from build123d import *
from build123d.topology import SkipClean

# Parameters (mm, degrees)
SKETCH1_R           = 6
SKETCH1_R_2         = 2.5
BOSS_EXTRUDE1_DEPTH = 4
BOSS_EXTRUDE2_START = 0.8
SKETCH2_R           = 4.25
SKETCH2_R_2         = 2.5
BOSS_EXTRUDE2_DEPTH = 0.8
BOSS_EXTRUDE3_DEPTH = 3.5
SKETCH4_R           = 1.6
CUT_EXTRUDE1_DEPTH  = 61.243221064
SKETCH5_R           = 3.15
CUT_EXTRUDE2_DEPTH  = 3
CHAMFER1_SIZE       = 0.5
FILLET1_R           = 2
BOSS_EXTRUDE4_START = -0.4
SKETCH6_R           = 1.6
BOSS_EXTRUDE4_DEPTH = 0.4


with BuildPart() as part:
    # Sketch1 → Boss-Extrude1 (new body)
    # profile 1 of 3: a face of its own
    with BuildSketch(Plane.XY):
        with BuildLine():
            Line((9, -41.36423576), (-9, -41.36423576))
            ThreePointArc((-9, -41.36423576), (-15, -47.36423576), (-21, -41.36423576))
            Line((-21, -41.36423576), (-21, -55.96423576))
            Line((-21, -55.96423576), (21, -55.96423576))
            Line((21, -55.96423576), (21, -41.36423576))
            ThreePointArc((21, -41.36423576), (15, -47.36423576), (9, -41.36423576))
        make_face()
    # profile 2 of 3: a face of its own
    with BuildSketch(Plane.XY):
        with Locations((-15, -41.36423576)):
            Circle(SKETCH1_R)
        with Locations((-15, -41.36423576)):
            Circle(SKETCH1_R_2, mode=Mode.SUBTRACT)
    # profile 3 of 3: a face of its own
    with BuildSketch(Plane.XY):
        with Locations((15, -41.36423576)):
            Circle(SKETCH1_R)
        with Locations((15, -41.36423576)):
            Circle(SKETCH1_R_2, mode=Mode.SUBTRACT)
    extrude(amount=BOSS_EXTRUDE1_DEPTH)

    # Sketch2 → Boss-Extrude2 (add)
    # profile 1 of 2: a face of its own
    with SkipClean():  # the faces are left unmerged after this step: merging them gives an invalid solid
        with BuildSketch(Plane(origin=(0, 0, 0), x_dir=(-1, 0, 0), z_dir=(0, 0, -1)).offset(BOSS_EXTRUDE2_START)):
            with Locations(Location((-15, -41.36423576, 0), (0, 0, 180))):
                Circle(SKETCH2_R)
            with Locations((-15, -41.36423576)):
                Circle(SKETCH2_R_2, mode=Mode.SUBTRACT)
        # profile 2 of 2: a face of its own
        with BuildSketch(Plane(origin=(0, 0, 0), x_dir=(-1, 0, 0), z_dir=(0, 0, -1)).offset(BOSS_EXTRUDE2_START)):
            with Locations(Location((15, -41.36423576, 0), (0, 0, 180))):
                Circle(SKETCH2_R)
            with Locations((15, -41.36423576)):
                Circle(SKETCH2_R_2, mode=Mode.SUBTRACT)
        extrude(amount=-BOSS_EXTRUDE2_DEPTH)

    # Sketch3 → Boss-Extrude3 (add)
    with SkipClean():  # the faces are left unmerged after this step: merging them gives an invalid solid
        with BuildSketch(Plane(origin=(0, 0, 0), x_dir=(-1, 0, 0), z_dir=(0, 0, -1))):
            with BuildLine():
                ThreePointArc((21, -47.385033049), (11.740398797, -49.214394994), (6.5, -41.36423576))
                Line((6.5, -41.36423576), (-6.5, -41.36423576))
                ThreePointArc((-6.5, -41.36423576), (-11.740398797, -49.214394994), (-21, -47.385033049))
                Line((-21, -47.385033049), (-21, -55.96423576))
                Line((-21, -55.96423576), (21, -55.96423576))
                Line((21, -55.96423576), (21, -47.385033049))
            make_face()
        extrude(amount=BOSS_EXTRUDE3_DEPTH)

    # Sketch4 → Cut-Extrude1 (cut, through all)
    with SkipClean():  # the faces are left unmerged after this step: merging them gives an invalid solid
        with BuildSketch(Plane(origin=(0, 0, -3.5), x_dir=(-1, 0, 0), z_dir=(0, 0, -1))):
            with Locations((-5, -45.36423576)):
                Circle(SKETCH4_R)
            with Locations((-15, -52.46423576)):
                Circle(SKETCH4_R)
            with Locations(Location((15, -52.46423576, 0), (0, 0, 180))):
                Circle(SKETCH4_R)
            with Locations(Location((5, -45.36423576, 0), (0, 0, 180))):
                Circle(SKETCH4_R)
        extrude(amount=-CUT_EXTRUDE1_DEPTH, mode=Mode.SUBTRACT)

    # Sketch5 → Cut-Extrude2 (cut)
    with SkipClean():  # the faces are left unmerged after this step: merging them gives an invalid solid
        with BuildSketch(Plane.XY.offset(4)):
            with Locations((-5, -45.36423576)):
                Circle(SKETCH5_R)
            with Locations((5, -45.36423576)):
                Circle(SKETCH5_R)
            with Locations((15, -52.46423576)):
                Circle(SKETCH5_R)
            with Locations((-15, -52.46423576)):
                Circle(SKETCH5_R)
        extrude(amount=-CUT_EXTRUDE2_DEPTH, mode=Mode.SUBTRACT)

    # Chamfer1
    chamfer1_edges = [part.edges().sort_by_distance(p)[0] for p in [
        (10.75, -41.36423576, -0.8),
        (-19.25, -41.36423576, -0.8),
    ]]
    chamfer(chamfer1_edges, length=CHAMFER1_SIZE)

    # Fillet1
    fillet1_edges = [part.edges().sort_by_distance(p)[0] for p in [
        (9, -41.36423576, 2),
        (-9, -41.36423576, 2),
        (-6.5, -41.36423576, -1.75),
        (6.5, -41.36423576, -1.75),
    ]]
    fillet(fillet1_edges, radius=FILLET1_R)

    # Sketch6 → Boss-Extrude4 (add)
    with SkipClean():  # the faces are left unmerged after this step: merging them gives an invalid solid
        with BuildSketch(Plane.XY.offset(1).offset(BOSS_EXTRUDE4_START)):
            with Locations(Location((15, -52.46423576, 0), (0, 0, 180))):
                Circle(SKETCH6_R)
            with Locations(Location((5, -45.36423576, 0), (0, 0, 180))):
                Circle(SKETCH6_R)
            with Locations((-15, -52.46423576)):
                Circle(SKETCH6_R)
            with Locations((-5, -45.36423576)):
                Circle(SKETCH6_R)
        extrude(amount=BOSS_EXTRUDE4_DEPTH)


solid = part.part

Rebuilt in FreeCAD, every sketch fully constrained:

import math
import FreeCAD as App
import Part
import Sketcher
from FreeCAD import Vector


def edges_at(feature, points):
    """Names of the edges that pass closest to the given points."""
    edges = feature.Shape.Edges
    near = lambda p: min(range(len(edges)), key=lambda i: edges[i].distToShape(Part.Vertex(*p))[0])
    return sorted({f"Edge{near(p) + 1}" for p in points})

doc = App.newDocument("Part")
body = doc.addObject("PartDesign::Body", "Body")

sketch1 = doc.addObject("Sketcher::SketchObject", "Sketch")
body.addObject(sketch1)
sketch1.AttachmentSupport = (doc.XY_Plane, [""])
sketch1.MapMode = "FlatFace"
sketch1.addGeometry([
    Part.LineSegment(Vector(9, -41.4, 0), Vector(-9, -41.4, 0)),
    Part.ArcOfCircle(Part.Circle(Vector(-15, -41.4, 0), Vector(0, 0, 1), 6), math.radians(0), math.radians(180)),
    Part.LineSegment(Vector(-21, -41.4, 0), Vector(-21, -56, 0)),
    Part.LineSegment(Vector(-21, -56, 0), Vector(21, -56, 0)),
    Part.LineSegment(Vector(21, -56, 0), Vector(21, -41.4, 0)),
    Part.ArcOfCircle(Part.Circle(Vector(15, -41.4, 0), Vector(0, 0, 1), 6), math.radians(0), math.radians(180)),
    Part.Circle(Vector(-15, -41.4, 0), Vector(0, 0, 1), 2.5),
    Part.Circle(Vector(15, -41.4, 0), Vector(0, 0, 1), 2.5),
], False)
sketch1.addConstraint([
    Sketcher.Constraint("Coincident", 0, 2, 1, 1),
    Sketcher.Constraint("Tangent", 1, 2, 2, 1),
    Sketcher.Constraint("Coincident", 2, 2, 3, 1),
    Sketcher.Constraint("Coincident", 3, 2, 4, 1),
    Sketcher.Constraint("Tangent", 4, 2, 5, 1),
    Sketcher.Constraint("Coincident", 5, 2, 0, 1),
    Sketcher.Constraint("Horizontal", 0),
    Sketcher.Constraint("Vertical", 2),
    Sketcher.Constraint("Horizontal", 3),
    Sketcher.Constraint("Vertical", 4),
    Sketcher.Constraint("Coincident", 6, 3, 1, 3),
    Sketcher.Constraint("Coincident", 7, 3, 5, 3),
    Sketcher.Constraint("Equal", 1, 5),
    Sketcher.Constraint("Equal", 6, 7),
    Sketcher.Constraint("Symmetric", 1, 3, 5, 3, -2),
    Sketcher.Constraint("Horizontal", 7, 3, 0, 2),
    Sketcher.Constraint("Diameter", 6, 5.0),
    Sketcher.Constraint("Radius", 1, 6.0),
    Sketcher.Constraint("DistanceX", 0, 2, 0, 1, 18.0),
    Sketcher.Constraint("DistanceY", 2, 2, 2, 1, 14.6),
    Sketcher.Constraint("DistanceY", 1, 3, -1, 1, 41.364236),
])
pad1 = doc.addObject("PartDesign::Pad", "Pad")
body.addObject(pad1)
pad1.Profile = sketch1
pad1.Length = 4

sketch2 = doc.addObject("Sketcher::SketchObject", "Sketch001")
body.addObject(sketch2)
sketch2.AttachmentSupport = (doc.XY_Plane, [""])
sketch2.MapMode = "FlatFace"
sketch2.AttachmentOffset = App.Placement(Vector(0, 0, -0.8), App.Rotation())
sketch2.addGeometry([
    Part.Circle(Vector(15, -41.4, 0), Vector(0, 0, 1), 4.2),
    Part.Circle(Vector(15, -41.4, 0), Vector(0, 0, 1), 2.5),
    Part.Circle(Vector(-15, -41.4, 0), Vector(0, 0, 1), 4.2),
    Part.Circle(Vector(-15, -41.4, 0), Vector(0, 0, 1), 2.5),
], False)
sketch2.addConstraint([
    Sketcher.Constraint("Coincident", 1, 3, 0, 3),
    Sketcher.Constraint("Coincident", 3, 3, 2, 3),
    Sketcher.Constraint("Equal", 0, 2),
    Sketcher.Constraint("Equal", 1, 3),
    Sketcher.Constraint("Symmetric", 0, 3, 2, 3, -2),
    Sketcher.Constraint("Diameter", 1, 5.0),
    Sketcher.Constraint("Diameter", 0, 8.5),
    Sketcher.Constraint("DistanceX", -1, 1, 0, 3, 15.0),
    Sketcher.Constraint("DistanceY", 0, 3, -1, 1, 41.364236),
])
pad2 = doc.addObject("PartDesign::Pad", "Pad001")
body.addObject(pad2)
pad2.Profile = sketch2
pad2.Length = 0.8

sketch3 = doc.addObject("Sketcher::SketchObject", "Sketch002")
body.addObject(sketch3)
sketch3.AttachmentSupport = (doc.XY_Plane, [""])
sketch3.MapMode = "FlatFace"
sketch3.addGeometry([
    Part.ArcOfCircle(Part.Circle(Vector(-15, -41, 0), Vector(0, 0, 1), 8), math.radians(-135), math.radians(0)),
    Part.LineSegment(Vector(-6, -41, 0), Vector(6, -41, 0)),
    Part.ArcOfCircle(Part.Circle(Vector(15, -41, 0), Vector(0, 0, 1), 8), math.radians(180), math.radians(315)),
    Part.LineSegment(Vector(21, -47, 0), Vector(21, -56, 0)),
    Part.LineSegment(Vector(21, -56, 0), Vector(-21, -56, 0)),
    Part.LineSegment(Vector(-21, -56, 0), Vector(-21, -47, 0)),
], False)
sketch3.addConstraint([
    Sketcher.Constraint("Coincident", 0, 2, 1, 1),
    Sketcher.Constraint("Coincident", 1, 2, 2, 1),
    Sketcher.Constraint("Coincident", 2, 2, 3, 1),
    Sketcher.Constraint("Coincident", 3, 2, 4, 1),
    Sketcher.Constraint("Coincident", 4, 2, 5, 1),
    Sketcher.Constraint("Coincident", 5, 2, 0, 1),
    Sketcher.Constraint("Horizontal", 1),
    Sketcher.Constraint("Vertical", 3),
    Sketcher.Constraint("Horizontal", 4),
    Sketcher.Constraint("Vertical", 5),
    Sketcher.Constraint("Equal", 0, 2),
    Sketcher.Constraint("Symmetric", 0, 3, 2, 3, -2),
    Sketcher.Constraint("Horizontal", 2, 3, 0, 2),
    Sketcher.Constraint("Horizontal", 2, 2, 5, 2),
    Sketcher.Constraint("Radius", 0, 8.5),
    Sketcher.Constraint("DistanceX", 1, 1, 1, 2, 13.0),
    Sketcher.Constraint("DistanceX", 4, 2, 4, 1, 42.0),
    Sketcher.Constraint("DistanceY", 3, 2, 2, 3, 14.6),
    Sketcher.Constraint("DistanceY", 0, 3, -1, 1, 41.364236),
])
pad3 = doc.addObject("PartDesign::Pad", "Pad002")
body.addObject(pad3)
pad3.Profile = sketch3
pad3.Length = 3.5
pad3.Reversed = True

sketch4 = doc.addObject("Sketcher::SketchObject", "Sketch003")
body.addObject(sketch4)
sketch4.AttachmentSupport = (doc.XY_Plane, [""])
sketch4.MapMode = "FlatFace"
sketch4.AttachmentOffset = App.Placement(Vector(0, 0, -3.5), App.Rotation())
sketch4.addGeometry([
    Part.Circle(Vector(5, -45.4, 0), Vector(0, 0, 1), 1.6),
    Part.Circle(Vector(15, -52.5, 0), Vector(0, 0, 1), 1.6),
    Part.Circle(Vector(-15, -52.5, 0), Vector(0, 0, 1), 1.6),
    Part.Circle(Vector(-5, -45.4, 0), Vector(0, 0, 1), 1.6),
], False)
sketch4.addConstraint([
    Sketcher.Constraint("Equal", 0, 1),
    Sketcher.Constraint("Equal", 1, 2),
    Sketcher.Constraint("Equal", 2, 3),
    Sketcher.Constraint("Symmetric", 1, 3, 2, 3, -2),
    Sketcher.Constraint("Symmetric", 0, 3, 3, 3, -2),
    Sketcher.Constraint("Diameter", 0, 3.2),
    Sketcher.Constraint("DistanceX", -1, 1, 0, 3, 5.0),
    Sketcher.Constraint("DistanceX", -1, 1, 1, 3, 15.0),
    Sketcher.Constraint("DistanceY", 1, 3, 0, 3, 7.1),
    Sketcher.Constraint("DistanceY", 0, 3, -1, 1, 45.364236),
])
pocket1 = doc.addObject("PartDesign::Pocket", "Pocket")
body.addObject(pocket1)
pocket1.Profile = sketch4
pocket1.Type = "ThroughAll"
pocket1.Reversed = True

sketch5 = doc.addObject("Sketcher::SketchObject", "Sketch004")
body.addObject(sketch5)
sketch5.AttachmentSupport = (doc.XY_Plane, [""])
sketch5.MapMode = "FlatFace"
sketch5.AttachmentOffset = App.Placement(Vector(0, 0, 4), App.Rotation())
sketch5.addGeometry([
    Part.Circle(Vector(-5, -45.4, 0), Vector(0, 0, 1), 3.1),
    Part.Circle(Vector(5, -45.4, 0), Vector(0, 0, 1), 3.1),
    Part.Circle(Vector(15, -52.5, 0), Vector(0, 0, 1), 3.1),
    Part.Circle(Vector(-15, -52.5, 0), Vector(0, 0, 1), 3.1),
], False)
sketch5.addConstraint([
    Sketcher.Constraint("Equal", 0, 1),
    Sketcher.Constraint("Equal", 1, 2),
    Sketcher.Constraint("Equal", 2, 3),
    Sketcher.Constraint("Symmetric", 0, 3, 1, 3, -2),
    Sketcher.Constraint("Symmetric", 2, 3, 3, 3, -2),
    Sketcher.Constraint("Diameter", 0, 6.3),
    Sketcher.Constraint("DistanceX", 0, 3, -1, 1, 5.0),
    Sketcher.Constraint("DistanceX", -1, 1, 2, 3, 15.0),
    Sketcher.Constraint("DistanceY", 2, 3, 1, 3, 7.1),
    Sketcher.Constraint("DistanceY", 0, 3, -1, 1, 45.364236),
])
pocket2 = doc.addObject("PartDesign::Pocket", "Pocket001")
body.addObject(pocket2)
pocket2.Profile = sketch5
pocket2.Length = 3
doc.recompute()

chamfer = doc.addObject("PartDesign::Chamfer", "Chamfer")
body.addObject(chamfer)
chamfer.Base = (pocket2, edges_at(pocket2, [(10.75, -41.364, -0.8), (-19.25, -41.364, -0.8)]))
chamfer.Size = 0.5
doc.recompute()

fillet = doc.addObject("PartDesign::Fillet", "Fillet")
body.addObject(fillet)
fillet.Base = (chamfer, edges_at(chamfer, [
    (9, -41.364, 2),
    (-9, -41.364, 2),
    (-6.5, -41.364, -1.75),
    (6.5, -41.364, -1.75),
]))
fillet.Radius = 2

sketch6 = doc.addObject("Sketcher::SketchObject", "Sketch005")
body.addObject(sketch6)
sketch6.AttachmentSupport = (doc.XY_Plane, [""])
sketch6.MapMode = "FlatFace"
sketch6.AttachmentOffset = App.Placement(Vector(0, 0, 0.6), App.Rotation())
sketch6.addGeometry([
    Part.Circle(Vector(15, -52.5, 0), Vector(0, 0, 1), 1.6),
    Part.Circle(Vector(5, -45.4, 0), Vector(0, 0, 1), 1.6),
    Part.Circle(Vector(-15, -52.5, 0), Vector(0, 0, 1), 1.6),
    Part.Circle(Vector(-5, -45.4, 0), Vector(0, 0, 1), 1.6),
], False)
sketch6.addConstraint([
    Sketcher.Constraint("Equal", 0, 1),
    Sketcher.Constraint("Equal", 1, 2),
    Sketcher.Constraint("Equal", 2, 3),
    Sketcher.Constraint("Symmetric", 0, 3, 2, 3, -2),
    Sketcher.Constraint("Symmetric", 1, 3, 3, 3, -2),
    Sketcher.Constraint("Diameter", 0, 3.2),
    Sketcher.Constraint("DistanceX", -1, 1, 0, 3, 15.0),
    Sketcher.Constraint("DistanceX", -1, 1, 1, 3, 5.0),
    Sketcher.Constraint("DistanceY", 0, 3, 1, 3, 7.1),
    Sketcher.Constraint("DistanceY", 0, 3, -1, 1, 52.464236),
])
pad4 = doc.addObject("PartDesign::Pad", "Pad003")
body.addObject(pad4)
pad4.Profile = sketch6
pad4.Length = 0.4

doc.recompute()
